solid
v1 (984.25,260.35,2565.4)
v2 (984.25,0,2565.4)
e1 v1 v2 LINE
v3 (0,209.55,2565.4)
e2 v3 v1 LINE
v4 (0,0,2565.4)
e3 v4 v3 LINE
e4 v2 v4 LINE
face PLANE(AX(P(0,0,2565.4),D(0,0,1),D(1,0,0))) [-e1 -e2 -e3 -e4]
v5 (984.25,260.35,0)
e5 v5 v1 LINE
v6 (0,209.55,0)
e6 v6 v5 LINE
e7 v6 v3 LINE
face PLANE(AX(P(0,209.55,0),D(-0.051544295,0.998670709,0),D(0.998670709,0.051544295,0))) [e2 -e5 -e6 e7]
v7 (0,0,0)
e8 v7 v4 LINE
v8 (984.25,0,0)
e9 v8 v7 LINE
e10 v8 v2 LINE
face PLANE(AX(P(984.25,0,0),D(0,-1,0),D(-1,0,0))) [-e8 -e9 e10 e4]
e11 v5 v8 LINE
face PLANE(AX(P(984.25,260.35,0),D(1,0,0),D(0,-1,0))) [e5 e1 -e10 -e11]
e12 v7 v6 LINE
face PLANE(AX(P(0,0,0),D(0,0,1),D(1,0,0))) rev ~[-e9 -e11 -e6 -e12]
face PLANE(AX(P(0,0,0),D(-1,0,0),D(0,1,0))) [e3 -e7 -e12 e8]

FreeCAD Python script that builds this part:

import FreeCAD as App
import Part
import Sketcher
from FreeCAD import Vector
Q = App.Units.Quantity


def add_polygon(sketch, points):
    """Adds a closed chain of lines whose ends are joined by coincident constraints."""
    first, n = sketch.GeometryCount, len(points)
    for a, b in zip(points, points[1:] + points[:1]):
        sketch.addGeometry(Part.LineSegment(App.Vector(*a, 0), App.Vector(*b, 0)), False)
    for i in range(n):
        sketch.addConstraint(Sketcher.Constraint("Coincident", first + i, 2, first + (i + 1) % n, 1))

doc = App.newDocument("Part")
body = doc.addObject("PartDesign::Body", "Body")

# Sketch on XY plane
sketch1 = body.newObject("Sketcher::SketchObject", "Sketch")
sketch1.AttachmentSupport = (doc.getObject("XY_Plane"), [""])
sketch1.MapMode = "FlatFace"
add_polygon(sketch1, [(0, 209.55), (0, 0), (984.25, 0), (984.25, 260.35)])  # lines 0-3
sketch1.addConstraint([
    Sketcher.Constraint("Vertical", 0),
    Sketcher.Constraint("Horizontal", 1),
    Sketcher.Constraint("Vertical", 2),
    Sketcher.Constraint("Coincident", 0, 2, -1, 1),
    Sketcher.Constraint("DistanceX", 1, 1, 1, 2, Q("38.75 in")),
    Sketcher.Constraint("DistanceY", 0, 2, 0, 1, Q("8.25 in")),
    Sketcher.Constraint("DistanceY", 2, 1, 2, 2, Q("10.25 in")),
])
pad1 = body.newObject("PartDesign::Pad", "Pad")
pad1.Profile = sketch1
pad1.Length = Q("101 in")

doc.recompute()
